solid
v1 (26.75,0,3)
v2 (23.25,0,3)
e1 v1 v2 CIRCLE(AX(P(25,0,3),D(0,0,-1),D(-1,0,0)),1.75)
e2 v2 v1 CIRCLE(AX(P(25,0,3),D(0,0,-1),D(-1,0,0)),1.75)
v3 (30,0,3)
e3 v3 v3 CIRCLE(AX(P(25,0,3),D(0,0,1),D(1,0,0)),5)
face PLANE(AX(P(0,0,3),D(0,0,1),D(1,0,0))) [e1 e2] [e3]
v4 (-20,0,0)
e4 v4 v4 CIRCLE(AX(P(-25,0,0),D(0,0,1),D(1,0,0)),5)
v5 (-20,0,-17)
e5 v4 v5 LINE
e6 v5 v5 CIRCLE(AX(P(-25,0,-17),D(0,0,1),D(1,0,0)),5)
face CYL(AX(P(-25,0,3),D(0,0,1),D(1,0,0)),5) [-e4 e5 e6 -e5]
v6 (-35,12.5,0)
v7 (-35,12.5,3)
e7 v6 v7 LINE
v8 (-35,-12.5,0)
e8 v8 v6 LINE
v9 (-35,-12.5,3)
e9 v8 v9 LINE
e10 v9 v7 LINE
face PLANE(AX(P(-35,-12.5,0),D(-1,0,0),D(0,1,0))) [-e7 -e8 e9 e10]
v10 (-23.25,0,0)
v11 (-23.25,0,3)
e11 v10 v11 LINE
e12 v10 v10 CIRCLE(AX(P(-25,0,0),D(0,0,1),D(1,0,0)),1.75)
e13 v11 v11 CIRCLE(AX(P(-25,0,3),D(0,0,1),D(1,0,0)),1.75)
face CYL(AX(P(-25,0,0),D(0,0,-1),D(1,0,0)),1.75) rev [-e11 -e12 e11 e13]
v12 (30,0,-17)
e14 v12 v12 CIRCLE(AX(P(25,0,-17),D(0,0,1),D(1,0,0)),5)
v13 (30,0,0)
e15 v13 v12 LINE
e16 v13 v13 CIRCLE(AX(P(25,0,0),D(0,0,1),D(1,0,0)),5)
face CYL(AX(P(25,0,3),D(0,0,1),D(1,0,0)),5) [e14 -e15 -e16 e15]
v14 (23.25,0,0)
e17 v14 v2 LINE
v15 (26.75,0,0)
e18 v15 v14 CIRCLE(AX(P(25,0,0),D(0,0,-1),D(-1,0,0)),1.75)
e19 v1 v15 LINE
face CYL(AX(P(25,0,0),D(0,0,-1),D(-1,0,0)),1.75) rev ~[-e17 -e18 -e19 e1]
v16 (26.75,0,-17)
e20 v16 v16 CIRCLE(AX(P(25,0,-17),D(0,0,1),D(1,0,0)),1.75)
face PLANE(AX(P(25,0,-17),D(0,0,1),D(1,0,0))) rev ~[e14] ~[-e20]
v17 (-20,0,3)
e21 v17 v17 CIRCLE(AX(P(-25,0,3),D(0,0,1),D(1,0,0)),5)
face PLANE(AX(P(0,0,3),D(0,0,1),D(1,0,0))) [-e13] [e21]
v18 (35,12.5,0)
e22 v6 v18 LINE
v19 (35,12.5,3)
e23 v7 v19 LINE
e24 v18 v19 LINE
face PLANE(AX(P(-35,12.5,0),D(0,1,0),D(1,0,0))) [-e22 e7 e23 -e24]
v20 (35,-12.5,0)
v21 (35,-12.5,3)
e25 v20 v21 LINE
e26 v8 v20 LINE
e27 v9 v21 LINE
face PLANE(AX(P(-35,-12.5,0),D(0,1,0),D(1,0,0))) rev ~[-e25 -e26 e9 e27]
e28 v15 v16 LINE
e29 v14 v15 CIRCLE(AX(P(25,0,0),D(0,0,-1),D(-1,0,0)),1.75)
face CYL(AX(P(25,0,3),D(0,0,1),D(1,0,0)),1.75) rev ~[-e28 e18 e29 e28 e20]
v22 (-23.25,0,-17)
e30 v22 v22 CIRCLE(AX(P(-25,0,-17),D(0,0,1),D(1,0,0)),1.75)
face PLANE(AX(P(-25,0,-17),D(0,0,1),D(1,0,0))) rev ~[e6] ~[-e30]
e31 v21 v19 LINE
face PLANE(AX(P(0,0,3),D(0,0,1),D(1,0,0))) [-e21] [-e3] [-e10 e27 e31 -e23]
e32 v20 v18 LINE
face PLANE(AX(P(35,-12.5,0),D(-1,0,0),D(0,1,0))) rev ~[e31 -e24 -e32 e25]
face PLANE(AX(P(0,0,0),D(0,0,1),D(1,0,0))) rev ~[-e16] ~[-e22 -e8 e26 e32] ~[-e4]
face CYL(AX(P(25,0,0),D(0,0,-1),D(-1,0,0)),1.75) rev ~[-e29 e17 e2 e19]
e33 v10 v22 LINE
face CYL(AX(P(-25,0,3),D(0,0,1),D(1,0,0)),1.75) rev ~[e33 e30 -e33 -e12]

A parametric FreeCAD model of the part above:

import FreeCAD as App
import Part
import Sketcher


def add_polygon(sketch, points):
    """Adds a closed chain of lines whose ends are joined by coincident constraints."""
    first, n = sketch.GeometryCount, len(points)
    for a, b in zip(points, points[1:] + points[:1]):
        sketch.addGeometry(Part.LineSegment(App.Vector(*a, 0), App.Vector(*b, 0)), False)
    for i in range(n):
        sketch.addConstraint(Sketcher.Constraint("Coincident", first + i, 2, first + (i + 1) % n, 1))

doc = App.newDocument("Part")
body = doc.addObject("PartDesign::Body", "Body")

# Sketch on XY plane
sketch1 = body.newObject("Sketcher::SketchObject", "Sketch")
sketch1.AttachmentSupport = (doc.getObject("XY_Plane"), [""])
sketch1.MapMode = "FlatFace"
add_polygon(sketch1, [(-35, 12.5), (-35, -12.5), (35, -12.5), (35, 12.5)])  # lines 0-3
sketch1.addGeometry(Part.Circle(App.Vector(-25, 0, 0), App.Vector(0, 0, 1), 1.8), False)  # 4
sketch1.addGeometry(Part.Circle(App.Vector(25, 0, 0), App.Vector(0, 0, 1), 1.8), False)  # 5
sketch1.addConstraint([
    Sketcher.Constraint("Vertical", 0),
    Sketcher.Constraint("Horizontal", 1),
    Sketcher.Constraint("Vertical", 2),
    Sketcher.Constraint("Horizontal", 3),
    Sketcher.Constraint("Equal", 4, 5),
    Sketcher.Constraint("Symmetric", 4, 3, 5, 3, -1, 1),
    Sketcher.Constraint("Symmetric", 0, 2, 2, 2, -1, 1),
    Sketcher.Constraint("PointOnObject", 4, 3, -1),
    Sketcher.Constraint("Diameter", 4, 3.5),
    Sketcher.Constraint("DistanceX", 1, 1, 1, 2, 70.0),
    Sketcher.Constraint("DistanceY", 0, 2, 0, 1, 25.0),
    Sketcher.Constraint("DistanceX", 4, 3, -1, 1, 25.0),
])
pad1 = body.newObject("PartDesign::Pad", "Pad")
pad1.Profile = sketch1
pad1.Length = 3

# Sketch on XY plane
sketch2 = body.newObject("Sketcher::SketchObject", "Sketch001")
sketch2.AttachmentSupport = (doc.getObject("XY_Plane"), [""])
sketch2.MapMode = "FlatFace"
sketch2.AttachmentOffset = App.Placement(App.Vector(0, 0, 3), App.Rotation())
sketch2.addGeometry([
    Part.Circle(App.Vector(-25, 0, 0), App.Vector(0, 0, 1), 5),
    Part.Circle(App.Vector(-25, 0, 0), App.Vector(0, 0, 1), 1.8),
    Part.Circle(App.Vector(25, 0, 0), App.Vector(0, 0, 1), 5),
    Part.Circle(App.Vector(25, 0, 0), App.Vector(0, 0, 1), 1.8),
], False)
sketch2.addConstraint([
    Sketcher.Constraint("Coincident", 1, 3, 0, 3),
    Sketcher.Constraint("Coincident", 3, 3, 2, 3),
    Sketcher.Constraint("Equal", 0, 2),
    Sketcher.Constraint("Equal", 1, 3),
    Sketcher.Constraint("Symmetric", 0, 3, 2, 3, -1, 1),
    Sketcher.Constraint("PointOnObject", 0, 3, -1),
    Sketcher.Constraint("Diameter", 0, 10.0),
    Sketcher.Constraint("Diameter", 1, 3.5),
    Sketcher.Constraint("DistanceX", 0, 3, -1, 1, 25.0),
])
pad2 = body.newObject("PartDesign::Pad", "Pad001")
pad2.Profile = sketch2
pad2.Length = 20
pad2.Reversed = True

doc.recompute()
